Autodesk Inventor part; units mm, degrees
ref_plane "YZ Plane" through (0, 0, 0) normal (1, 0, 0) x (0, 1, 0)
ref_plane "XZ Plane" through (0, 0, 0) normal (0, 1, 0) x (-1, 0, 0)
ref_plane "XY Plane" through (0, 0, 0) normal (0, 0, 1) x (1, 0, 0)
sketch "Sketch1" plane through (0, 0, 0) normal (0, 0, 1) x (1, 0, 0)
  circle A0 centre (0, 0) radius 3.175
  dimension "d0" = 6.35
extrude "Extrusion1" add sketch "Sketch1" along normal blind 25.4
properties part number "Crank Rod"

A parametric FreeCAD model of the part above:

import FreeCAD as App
import Part
import Sketcher
Q = App.Units.Quantity

doc = App.newDocument("Part")
body = doc.addObject("PartDesign::Body", "Body")

sketch1 = body.newObject("Sketcher::SketchObject", "Sketch")
sketch1.AttachmentSupport = (doc.getObject("XY_Plane"), [""])
sketch1.MapMode = "FlatFace"
sketch1.addGeometry(Part.Circle(App.Vector(0, 0, 0), App.Vector(0, 0, 1), 3.175), False)
sketch1.addConstraint([
    Sketcher.Constraint("Coincident", 0, 3, -1, 1),
    Sketcher.Constraint("Diameter", 0, Q("0.25 in")),
])
pad1 = body.newObject("PartDesign::Pad", "Pad")
pad1.Profile = sketch1
pad1.Length = Q("1 in")

doc.recompute()
